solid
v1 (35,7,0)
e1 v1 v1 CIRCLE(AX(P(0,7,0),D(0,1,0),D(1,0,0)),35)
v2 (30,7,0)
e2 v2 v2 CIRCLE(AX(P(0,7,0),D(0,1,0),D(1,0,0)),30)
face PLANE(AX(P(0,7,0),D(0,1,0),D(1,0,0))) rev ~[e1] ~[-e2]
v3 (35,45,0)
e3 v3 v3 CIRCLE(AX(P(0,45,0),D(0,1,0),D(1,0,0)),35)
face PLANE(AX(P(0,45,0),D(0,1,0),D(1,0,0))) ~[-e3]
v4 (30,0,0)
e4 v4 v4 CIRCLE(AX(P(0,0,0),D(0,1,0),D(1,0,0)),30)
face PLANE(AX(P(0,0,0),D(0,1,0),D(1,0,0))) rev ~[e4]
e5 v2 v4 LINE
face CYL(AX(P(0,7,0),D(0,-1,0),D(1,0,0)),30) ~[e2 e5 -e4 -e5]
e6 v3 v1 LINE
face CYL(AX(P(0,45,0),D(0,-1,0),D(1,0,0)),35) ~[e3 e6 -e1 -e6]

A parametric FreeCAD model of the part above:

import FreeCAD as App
import Part
import Sketcher
Q = App.Units.Quantity

doc = App.newDocument("Part")
params = doc.addObject("Spreadsheet::Sheet", "Params")
for row, (alias, value) in enumerate([
    ("sketch1_width", "5 mm"),
    ("sketch1_width2", "35 mm"),
    ("sketch1_height", "45 mm"),
    ("sketch1_height2", "38 mm"),
    ("revolution_angle", "360 deg"),
], start=1):
    params.set(f"A{row}", alias)
    params.set(f"B{row}", "=" + value)
    params.setAlias(f"B{row}", alias)

body = doc.addObject("PartDesign::Body", "Body")

sketch1 = body.newObject("Sketcher::SketchObject", "Sketch")
sketch1.AttachmentSupport = (doc.getObject("XY_Plane"), [""])
sketch1.MapMode = "FlatFace"
sketch1.addGeometry(Part.LineSegment(App.Vector(0, 45, 0), App.Vector(0, 0, 0)), False)
sketch1.addGeometry(Part.LineSegment(App.Vector(0, 0, 0), App.Vector(30, 0, 0)), False)
sketch1.addGeometry(Part.LineSegment(App.Vector(30, 0, 0), App.Vector(30, 7, 0)), False)
sketch1.addGeometry(Part.LineSegment(App.Vector(30, 7, 0), App.Vector(35, 7, 0)), False)
sketch1.addGeometry(Part.LineSegment(App.Vector(35, 7, 0), App.Vector(35, 45, 0)), False)
sketch1.addGeometry(Part.LineSegment(App.Vector(35, 45, 0), App.Vector(0, 45, 0)), False)
sketch1.addConstraint(Sketcher.Constraint("Coincident", 0, 2, 1, 1))
sketch1.addConstraint(Sketcher.Constraint("Coincident", 1, 2, 2, 1))
sketch1.addConstraint(Sketcher.Constraint("Coincident", 2, 2, 3, 1))
sketch1.addConstraint(Sketcher.Constraint("Coincident", 3, 2, 4, 1))
sketch1.addConstraint(Sketcher.Constraint("Coincident", 4, 2, 5, 1))
sketch1.addConstraint(Sketcher.Constraint("Coincident", 5, 2, 0, 1))
sketch1.addConstraint(Sketcher.Constraint("Vertical", 0))
sketch1.addConstraint(Sketcher.Constraint("Horizontal", 1))
sketch1.addConstraint(Sketcher.Constraint("Vertical", 2))
sketch1.addConstraint(Sketcher.Constraint("Horizontal", 3))
sketch1.addConstraint(Sketcher.Constraint("Vertical", 4))
sketch1.addConstraint(Sketcher.Constraint("Horizontal", 5))
sketch1.addConstraint(Sketcher.Constraint("Coincident", 0, 2, -1, 1))
sketch1.addConstraint(Sketcher.Constraint("DistanceX", 3, 1, 3, 2, Q("5 mm")))
sketch1.addConstraint(Sketcher.Constraint("DistanceX", 5, 2, 5, 1, Q("35 mm")))
sketch1.addConstraint(Sketcher.Constraint("DistanceY", 0, 2, 0, 1, Q("45 mm")))
sketch1.addConstraint(Sketcher.Constraint("DistanceY", 4, 1, 4, 2, Q("38 mm")))
sketch1.setExpression("Constraints[13]", "Params.sketch1_width")
sketch1.setExpression("Constraints[14]", "Params.sketch1_width2")
sketch1.setExpression("Constraints[15]", "Params.sketch1_height")
sketch1.setExpression("Constraints[16]", "Params.sketch1_height2")
revolution = body.newObject("PartDesign::Revolution", "Revolution")
revolution.Profile = sketch1
revolution.ReferenceAxis = (sketch1, ["V_Axis"])
revolution.setExpression("Angle", "Params.revolution_angle")

doc.recompute()
